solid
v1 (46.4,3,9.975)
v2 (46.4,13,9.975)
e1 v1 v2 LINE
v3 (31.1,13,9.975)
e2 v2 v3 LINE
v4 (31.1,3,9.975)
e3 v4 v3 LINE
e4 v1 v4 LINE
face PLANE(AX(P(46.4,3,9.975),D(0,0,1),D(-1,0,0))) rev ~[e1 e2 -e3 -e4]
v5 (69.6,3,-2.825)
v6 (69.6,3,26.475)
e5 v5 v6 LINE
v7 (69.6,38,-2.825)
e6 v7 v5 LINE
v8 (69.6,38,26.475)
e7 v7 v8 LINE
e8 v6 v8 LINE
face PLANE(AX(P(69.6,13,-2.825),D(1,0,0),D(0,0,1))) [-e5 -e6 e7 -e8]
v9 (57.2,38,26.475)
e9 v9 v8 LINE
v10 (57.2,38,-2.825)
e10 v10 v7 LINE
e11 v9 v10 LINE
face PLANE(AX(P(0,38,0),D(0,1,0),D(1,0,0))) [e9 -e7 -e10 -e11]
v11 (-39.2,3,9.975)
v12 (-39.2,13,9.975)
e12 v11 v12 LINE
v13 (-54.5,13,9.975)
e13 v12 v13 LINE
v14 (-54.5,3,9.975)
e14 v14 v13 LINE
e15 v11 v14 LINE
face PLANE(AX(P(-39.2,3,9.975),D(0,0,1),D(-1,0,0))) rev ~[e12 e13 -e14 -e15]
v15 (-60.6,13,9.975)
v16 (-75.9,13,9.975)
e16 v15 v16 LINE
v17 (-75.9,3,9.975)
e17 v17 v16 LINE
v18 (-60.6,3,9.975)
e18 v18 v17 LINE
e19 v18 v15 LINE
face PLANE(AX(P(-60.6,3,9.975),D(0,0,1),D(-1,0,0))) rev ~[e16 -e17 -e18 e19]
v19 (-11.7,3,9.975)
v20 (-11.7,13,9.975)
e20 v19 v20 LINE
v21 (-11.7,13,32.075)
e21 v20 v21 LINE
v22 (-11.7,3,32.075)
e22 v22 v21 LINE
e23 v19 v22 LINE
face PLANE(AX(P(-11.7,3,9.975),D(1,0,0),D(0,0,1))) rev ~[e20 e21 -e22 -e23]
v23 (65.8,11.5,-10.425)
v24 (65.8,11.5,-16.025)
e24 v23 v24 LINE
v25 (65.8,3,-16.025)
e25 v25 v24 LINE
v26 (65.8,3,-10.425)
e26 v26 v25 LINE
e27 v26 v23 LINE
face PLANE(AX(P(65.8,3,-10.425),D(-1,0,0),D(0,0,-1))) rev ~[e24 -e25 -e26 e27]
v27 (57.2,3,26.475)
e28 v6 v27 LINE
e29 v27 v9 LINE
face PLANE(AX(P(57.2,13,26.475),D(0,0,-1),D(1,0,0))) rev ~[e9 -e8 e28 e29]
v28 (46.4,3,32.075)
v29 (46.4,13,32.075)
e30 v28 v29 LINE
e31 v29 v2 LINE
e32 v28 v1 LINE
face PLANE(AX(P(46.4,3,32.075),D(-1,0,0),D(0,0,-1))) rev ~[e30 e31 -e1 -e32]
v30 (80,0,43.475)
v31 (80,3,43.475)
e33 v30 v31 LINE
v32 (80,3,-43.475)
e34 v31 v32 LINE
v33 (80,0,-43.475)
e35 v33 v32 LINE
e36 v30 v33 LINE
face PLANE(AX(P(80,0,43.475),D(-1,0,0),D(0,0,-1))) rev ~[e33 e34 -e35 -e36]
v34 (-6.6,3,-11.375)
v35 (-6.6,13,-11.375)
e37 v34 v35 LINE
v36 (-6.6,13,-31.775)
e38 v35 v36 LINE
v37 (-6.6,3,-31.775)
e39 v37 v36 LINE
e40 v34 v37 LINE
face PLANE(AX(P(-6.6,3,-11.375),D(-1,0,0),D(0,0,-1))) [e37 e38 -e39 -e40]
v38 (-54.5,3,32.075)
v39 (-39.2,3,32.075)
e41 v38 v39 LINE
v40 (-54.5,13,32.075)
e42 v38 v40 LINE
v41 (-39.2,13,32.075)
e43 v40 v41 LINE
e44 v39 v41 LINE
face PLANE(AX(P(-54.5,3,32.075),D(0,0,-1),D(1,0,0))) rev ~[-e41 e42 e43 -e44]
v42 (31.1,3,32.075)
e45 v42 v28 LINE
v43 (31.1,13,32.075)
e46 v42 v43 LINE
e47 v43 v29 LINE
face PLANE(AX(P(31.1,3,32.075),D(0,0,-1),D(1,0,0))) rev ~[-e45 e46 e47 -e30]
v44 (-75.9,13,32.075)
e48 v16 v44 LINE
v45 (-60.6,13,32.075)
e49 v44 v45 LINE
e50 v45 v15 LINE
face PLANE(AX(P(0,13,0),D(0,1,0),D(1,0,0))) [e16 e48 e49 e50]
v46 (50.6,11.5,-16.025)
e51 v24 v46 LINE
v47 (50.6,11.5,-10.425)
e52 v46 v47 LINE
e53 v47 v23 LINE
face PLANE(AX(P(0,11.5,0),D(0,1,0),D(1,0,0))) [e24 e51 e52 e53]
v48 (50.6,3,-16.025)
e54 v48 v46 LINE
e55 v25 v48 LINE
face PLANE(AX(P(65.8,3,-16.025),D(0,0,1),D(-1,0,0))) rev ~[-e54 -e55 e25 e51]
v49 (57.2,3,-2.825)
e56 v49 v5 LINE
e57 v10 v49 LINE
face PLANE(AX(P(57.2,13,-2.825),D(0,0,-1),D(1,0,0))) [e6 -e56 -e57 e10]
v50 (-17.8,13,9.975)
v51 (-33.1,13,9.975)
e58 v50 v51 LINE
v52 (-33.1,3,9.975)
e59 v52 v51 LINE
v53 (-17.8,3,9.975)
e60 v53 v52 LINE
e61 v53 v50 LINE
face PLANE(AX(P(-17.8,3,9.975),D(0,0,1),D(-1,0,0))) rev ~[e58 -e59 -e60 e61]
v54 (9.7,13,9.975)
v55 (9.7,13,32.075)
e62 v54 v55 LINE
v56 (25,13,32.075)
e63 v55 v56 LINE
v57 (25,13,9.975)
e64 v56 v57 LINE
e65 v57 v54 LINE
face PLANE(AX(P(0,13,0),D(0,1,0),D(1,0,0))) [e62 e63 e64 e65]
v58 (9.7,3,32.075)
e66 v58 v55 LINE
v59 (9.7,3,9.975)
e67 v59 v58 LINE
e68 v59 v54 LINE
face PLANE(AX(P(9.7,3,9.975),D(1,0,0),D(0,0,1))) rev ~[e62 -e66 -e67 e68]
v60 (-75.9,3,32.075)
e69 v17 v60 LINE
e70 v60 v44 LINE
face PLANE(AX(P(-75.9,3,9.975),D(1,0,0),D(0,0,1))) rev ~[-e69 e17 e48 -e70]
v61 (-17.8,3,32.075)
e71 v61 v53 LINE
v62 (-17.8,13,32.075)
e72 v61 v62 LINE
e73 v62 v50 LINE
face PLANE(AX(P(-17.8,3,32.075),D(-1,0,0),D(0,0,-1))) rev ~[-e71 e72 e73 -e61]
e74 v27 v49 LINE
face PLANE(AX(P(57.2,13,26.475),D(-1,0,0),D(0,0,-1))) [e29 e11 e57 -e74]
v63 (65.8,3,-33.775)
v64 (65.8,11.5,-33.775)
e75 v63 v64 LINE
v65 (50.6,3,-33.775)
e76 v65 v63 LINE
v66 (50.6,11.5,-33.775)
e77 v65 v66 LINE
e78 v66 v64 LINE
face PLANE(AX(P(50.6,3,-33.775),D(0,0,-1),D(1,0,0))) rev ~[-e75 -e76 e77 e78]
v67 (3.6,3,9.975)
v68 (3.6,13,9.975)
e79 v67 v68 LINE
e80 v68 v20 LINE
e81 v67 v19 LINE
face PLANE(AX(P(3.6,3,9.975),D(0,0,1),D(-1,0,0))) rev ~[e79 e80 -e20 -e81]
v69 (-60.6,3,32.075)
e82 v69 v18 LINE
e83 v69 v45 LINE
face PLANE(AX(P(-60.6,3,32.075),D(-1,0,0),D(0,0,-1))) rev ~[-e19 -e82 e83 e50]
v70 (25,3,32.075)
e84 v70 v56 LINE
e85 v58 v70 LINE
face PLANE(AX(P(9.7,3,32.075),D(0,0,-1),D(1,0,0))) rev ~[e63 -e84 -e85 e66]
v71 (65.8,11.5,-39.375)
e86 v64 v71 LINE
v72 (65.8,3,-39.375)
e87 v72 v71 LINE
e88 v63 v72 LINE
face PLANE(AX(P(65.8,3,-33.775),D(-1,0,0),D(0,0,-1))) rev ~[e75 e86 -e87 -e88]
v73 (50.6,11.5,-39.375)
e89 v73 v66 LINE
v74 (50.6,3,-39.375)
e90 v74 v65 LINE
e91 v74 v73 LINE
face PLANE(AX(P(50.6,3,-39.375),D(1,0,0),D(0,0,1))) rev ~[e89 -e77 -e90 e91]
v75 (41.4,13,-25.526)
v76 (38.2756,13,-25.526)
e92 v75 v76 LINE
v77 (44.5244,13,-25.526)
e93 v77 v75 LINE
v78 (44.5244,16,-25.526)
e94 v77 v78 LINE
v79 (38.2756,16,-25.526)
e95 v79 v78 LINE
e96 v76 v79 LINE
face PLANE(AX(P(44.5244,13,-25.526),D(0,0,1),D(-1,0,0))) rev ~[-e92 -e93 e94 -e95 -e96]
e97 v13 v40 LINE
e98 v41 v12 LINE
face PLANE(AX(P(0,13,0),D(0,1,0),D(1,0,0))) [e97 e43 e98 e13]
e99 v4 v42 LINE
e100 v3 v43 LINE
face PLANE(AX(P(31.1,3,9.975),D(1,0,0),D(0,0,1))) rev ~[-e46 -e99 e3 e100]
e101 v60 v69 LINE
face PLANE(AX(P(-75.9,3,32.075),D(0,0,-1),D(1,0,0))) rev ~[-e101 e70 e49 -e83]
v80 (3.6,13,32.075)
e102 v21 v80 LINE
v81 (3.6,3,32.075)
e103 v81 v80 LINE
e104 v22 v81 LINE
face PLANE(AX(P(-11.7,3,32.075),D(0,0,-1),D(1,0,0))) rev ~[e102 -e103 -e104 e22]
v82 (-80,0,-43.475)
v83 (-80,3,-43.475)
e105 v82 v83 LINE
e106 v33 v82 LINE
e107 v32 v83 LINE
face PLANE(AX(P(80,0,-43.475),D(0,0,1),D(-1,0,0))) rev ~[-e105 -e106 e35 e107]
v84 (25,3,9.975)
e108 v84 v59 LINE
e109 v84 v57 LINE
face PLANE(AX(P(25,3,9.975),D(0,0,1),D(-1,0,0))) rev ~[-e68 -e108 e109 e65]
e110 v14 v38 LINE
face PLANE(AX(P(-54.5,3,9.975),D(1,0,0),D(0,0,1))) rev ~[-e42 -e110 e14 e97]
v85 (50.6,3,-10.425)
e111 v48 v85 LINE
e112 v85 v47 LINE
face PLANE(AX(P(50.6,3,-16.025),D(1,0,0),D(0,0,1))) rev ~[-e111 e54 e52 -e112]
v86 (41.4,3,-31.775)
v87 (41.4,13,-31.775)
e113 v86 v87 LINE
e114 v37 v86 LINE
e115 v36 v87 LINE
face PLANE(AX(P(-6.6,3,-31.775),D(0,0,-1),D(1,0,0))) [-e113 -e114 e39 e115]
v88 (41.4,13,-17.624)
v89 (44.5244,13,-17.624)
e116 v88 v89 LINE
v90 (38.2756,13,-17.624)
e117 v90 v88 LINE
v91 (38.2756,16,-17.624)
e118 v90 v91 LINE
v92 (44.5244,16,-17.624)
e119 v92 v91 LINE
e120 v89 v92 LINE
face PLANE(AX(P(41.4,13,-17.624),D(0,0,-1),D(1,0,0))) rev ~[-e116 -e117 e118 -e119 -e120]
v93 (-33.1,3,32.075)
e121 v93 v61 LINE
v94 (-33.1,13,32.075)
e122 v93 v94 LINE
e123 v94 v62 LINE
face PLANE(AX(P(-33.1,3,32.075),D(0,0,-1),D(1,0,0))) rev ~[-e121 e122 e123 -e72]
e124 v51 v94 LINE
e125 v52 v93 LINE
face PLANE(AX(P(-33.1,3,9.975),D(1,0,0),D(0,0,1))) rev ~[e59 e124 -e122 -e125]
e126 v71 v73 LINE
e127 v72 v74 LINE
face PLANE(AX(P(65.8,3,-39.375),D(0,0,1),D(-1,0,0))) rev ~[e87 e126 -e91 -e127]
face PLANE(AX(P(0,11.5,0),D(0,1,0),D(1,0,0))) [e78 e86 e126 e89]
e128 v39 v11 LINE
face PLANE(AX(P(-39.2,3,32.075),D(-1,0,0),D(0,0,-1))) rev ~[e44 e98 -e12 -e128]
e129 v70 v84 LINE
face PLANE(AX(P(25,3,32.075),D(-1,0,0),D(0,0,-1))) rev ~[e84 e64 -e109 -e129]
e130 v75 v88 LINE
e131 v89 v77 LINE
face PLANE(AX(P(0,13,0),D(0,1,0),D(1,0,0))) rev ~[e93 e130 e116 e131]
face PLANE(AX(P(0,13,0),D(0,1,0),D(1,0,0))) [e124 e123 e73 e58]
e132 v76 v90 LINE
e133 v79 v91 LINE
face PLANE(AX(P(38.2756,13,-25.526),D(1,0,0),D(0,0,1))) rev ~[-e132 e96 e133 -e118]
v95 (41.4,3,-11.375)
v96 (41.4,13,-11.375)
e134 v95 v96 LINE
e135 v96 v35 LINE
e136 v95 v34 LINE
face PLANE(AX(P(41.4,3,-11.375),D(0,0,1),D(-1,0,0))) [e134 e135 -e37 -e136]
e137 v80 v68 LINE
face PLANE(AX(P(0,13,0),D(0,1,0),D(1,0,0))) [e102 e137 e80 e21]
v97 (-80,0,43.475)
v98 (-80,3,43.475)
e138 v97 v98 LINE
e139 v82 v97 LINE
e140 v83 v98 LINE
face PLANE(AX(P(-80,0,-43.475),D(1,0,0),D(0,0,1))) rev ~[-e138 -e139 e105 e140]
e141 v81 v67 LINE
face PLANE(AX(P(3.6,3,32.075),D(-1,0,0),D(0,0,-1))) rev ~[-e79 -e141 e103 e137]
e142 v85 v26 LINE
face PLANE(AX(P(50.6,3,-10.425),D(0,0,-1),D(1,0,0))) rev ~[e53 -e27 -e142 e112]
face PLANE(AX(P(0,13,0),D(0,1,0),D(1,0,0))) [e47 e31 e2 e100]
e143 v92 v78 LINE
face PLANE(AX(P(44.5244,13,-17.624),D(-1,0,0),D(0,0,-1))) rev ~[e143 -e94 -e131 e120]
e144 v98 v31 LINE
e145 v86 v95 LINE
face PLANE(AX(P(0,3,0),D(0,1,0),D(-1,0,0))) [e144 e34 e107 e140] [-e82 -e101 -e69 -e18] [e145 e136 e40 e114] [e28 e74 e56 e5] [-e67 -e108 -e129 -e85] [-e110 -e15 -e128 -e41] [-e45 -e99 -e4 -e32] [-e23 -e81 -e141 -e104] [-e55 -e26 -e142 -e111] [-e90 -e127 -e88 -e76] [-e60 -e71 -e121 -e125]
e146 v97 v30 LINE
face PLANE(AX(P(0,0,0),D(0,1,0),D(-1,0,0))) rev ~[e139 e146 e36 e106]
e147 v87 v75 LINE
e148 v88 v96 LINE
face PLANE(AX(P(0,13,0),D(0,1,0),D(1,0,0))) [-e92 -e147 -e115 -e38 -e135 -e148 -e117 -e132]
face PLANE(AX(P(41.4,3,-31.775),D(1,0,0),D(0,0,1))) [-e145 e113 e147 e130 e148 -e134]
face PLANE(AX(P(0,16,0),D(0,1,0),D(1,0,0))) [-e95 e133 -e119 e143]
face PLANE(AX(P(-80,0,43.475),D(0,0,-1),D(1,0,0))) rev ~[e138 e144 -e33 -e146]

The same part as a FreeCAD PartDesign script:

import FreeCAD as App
import Part
import Sketcher

doc = App.newDocument("Part")
body = doc.addObject("PartDesign::Body", "Body")

# Sketch on XZ plane
sketch1 = body.newObject("Sketcher::SketchObject", "Sketch")
sketch1.AttachmentSupport = (doc.getObject("XZ_Plane"), [""])
sketch1.MapMode = "FlatFace"
sketch1.addGeometry([
    Part.LineSegment(App.Vector(80, 43, 0), App.Vector(80, -43, 0)),
    Part.LineSegment(App.Vector(80, -43, 0), App.Vector(-80, -43, 0)),
    Part.LineSegment(App.Vector(-80, -43, 0), App.Vector(-80, 43, 0)),
    Part.LineSegment(App.Vector(-80, 43, 0), App.Vector(80, 43, 0)),
], False)
sketch1.addConstraint([
    Sketcher.Constraint("Coincident", 0, 2, 1, 1),
    Sketcher.Constraint("Coincident", 1, 2, 2, 1),
    Sketcher.Constraint("Coincident", 2, 2, 3, 1),
    Sketcher.Constraint("Coincident", 3, 2, 0, 1),
    Sketcher.Constraint("Vertical", 0),
    Sketcher.Constraint("Horizontal", 1),
    Sketcher.Constraint("Vertical", 2),
    Sketcher.Constraint("Horizontal", 3),
    Sketcher.Constraint("Symmetric", 0, 2, 2, 2, -1, 1),
    Sketcher.Constraint("DistanceX", 1, 2, 1, 1, 160.0),
    Sketcher.Constraint("DistanceY", 0, 2, 0, 1, 86.95),
])
pad1 = body.newObject("PartDesign::Pad", "Pad")
pad1.Profile = sketch1
pad1.Length = 3
pad1.Reversed = True

# Sketch on XZ plane
sketch2 = body.newObject("Sketcher::SketchObject", "Sketch001")
sketch2.AttachmentSupport = (doc.getObject("XZ_Plane"), [""])
sketch2.MapMode = "FlatFace"
sketch2.AttachmentOffset = App.Placement(App.Vector(0, 0, -3), App.Rotation())
sketch2.addGeometry([
    Part.LineSegment(App.Vector(41, -32, 0), App.Vector(-7, -32, 0)),  # 0
    Part.LineSegment(App.Vector(-7, -32, 0), App.Vector(-7, -11, 0)),  # 1
    Part.LineSegment(App.Vector(-7, -11, 0), App.Vector(41, -11, 0)),  # 2
    Part.LineSegment(App.Vector(41, -11, 0), App.Vector(41, -32, 0)),  # 3
    Part.LineSegment(App.Vector(-76, 10, 0), App.Vector(-76, 32, 0)),  # 4
    Part.LineSegment(App.Vector(-76, 32, 0), App.Vector(-61, 32, 0)),  # 5
    Part.LineSegment(App.Vector(-61, 32, 0), App.Vector(-61, 10, 0)),  # 6
    Part.LineSegment(App.Vector(-61, 10, 0), App.Vector(-76, 10, 0)),  # 7
    Part.LineSegment(App.Vector(-54, 10, 0), App.Vector(-54, 32, 0)),  # 8
    Part.LineSegment(App.Vector(-54, 32, 0), App.Vector(-39, 32, 0)),  # 9
    Part.LineSegment(App.Vector(-39, 32, 0), App.Vector(-39, 10, 0)),  # 10
    Part.LineSegment(App.Vector(-39, 10, 0), App.Vector(-54, 10, 0)),  # 11
    Part.LineSegment(App.Vector(-33, 10, 0), App.Vector(-33, 32, 0)),  # 12
    Part.LineSegment(App.Vector(-33, 32, 0), App.Vector(-18, 32, 0)),  # 13
    Part.LineSegment(App.Vector(-18, 32, 0), App.Vector(-18, 10, 0)),  # 14
    Part.LineSegment(App.Vector(-18, 10, 0), App.Vector(-33, 10, 0)),  # 15
    Part.LineSegment(App.Vector(70, -3, 0), App.Vector(57, -3, 0)),  # 16
    Part.LineSegment(App.Vector(57, -3, 0), App.Vector(57, 26, 0)),  # 17
    Part.LineSegment(App.Vector(57, 26, 0), App.Vector(70, 26, 0)),  # 18
    Part.LineSegment(App.Vector(70, 26, 0), App.Vector(70, -3, 0)),  # 19
    Part.LineSegment(App.Vector(4, 10, 0), App.Vector(-12, 10, 0)),  # 20
    Part.LineSegment(App.Vector(-12, 10, 0), App.Vector(-12, 32, 0)),  # 21
    Part.LineSegment(App.Vector(-12, 32, 0), App.Vector(4, 32, 0)),  # 22
    Part.LineSegment(App.Vector(4, 32, 0), App.Vector(4, 10, 0)),  # 23
    Part.LineSegment(App.Vector(46, 10, 0), App.Vector(31, 10, 0)),  # 24
    Part.LineSegment(App.Vector(31, 10, 0), App.Vector(31, 32, 0)),  # 25
    Part.LineSegment(App.Vector(31, 32, 0), App.Vector(46, 32, 0)),  # 26
    Part.LineSegment(App.Vector(46, 32, 0), App.Vector(46, 10, 0)),  # 27
    Part.LineSegment(App.Vector(25, 32, 0), App.Vector(25, 10, 0)),  # 28
    Part.LineSegment(App.Vector(25, 10, 0), App.Vector(10, 10, 0)),  # 29
    Part.LineSegment(App.Vector(10, 10, 0), App.Vector(10, 32, 0)),  # 30
    Part.LineSegment(App.Vector(10, 32, 0), App.Vector(25, 32, 0)),  # 31
], False)
sketch2.addConstraint([
    Sketcher.Constraint("Coincident", 0, 2, 1, 1),
    Sketcher.Constraint("Coincident", 1, 2, 2, 1),
    Sketcher.Constraint("Coincident", 2, 2, 3, 1),
    Sketcher.Constraint("Coincident", 3, 2, 0, 1),
    Sketcher.Constraint("Coincident", 4, 2, 5, 1),
    Sketcher.Constraint("Coincident", 5, 2, 6, 1),
    Sketcher.Constraint("Coincident", 6, 2, 7, 1),
    Sketcher.Constraint("Coincident", 7, 2, 4, 1),
    Sketcher.Constraint("Coincident", 8, 2, 9, 1),
    Sketcher.Constraint("Coincident", 9, 2, 10, 1),
    Sketcher.Constraint("Coincident", 10, 2, 11, 1),
    Sketcher.Constraint("Coincident", 11, 2, 8, 1),
    Sketcher.Constraint("Coincident", 12, 2, 13, 1),
    Sketcher.Constraint("Coincident", 13, 2, 14, 1),
    Sketcher.Constraint("Coincident", 14, 2, 15, 1),
    Sketcher.Constraint("Coincident", 15, 2, 12, 1),
    Sketcher.Constraint("Coincident", 16, 2, 17, 1),
    Sketcher.Constraint("Coincident", 17, 2, 18, 1),
    Sketcher.Constraint("Coincident", 18, 2, 19, 1),
    Sketcher.Constraint("Coincident", 19, 2, 16, 1),
    Sketcher.Constraint("Coincident", 20, 2, 21, 1),
    Sketcher.Constraint("Coincident", 21, 2, 22, 1),
    Sketcher.Constraint("Coincident", 22, 2, 23, 1),
    Sketcher.Constraint("Coincident", 23, 2, 20, 1),
    Sketcher.Constraint("Coincident", 24, 2, 25, 1),
    Sketcher.Constraint("Coincident", 25, 2, 26, 1),
    Sketcher.Constraint("Coincident", 26, 2, 27, 1),
    Sketcher.Constraint("Coincident", 27, 2, 24, 1),
    Sketcher.Constraint("Coincident", 28, 2, 29, 1),
    Sketcher.Constraint("Coincident", 29, 2, 30, 1),
    Sketcher.Constraint("Coincident", 30, 2, 31, 1),
    Sketcher.Constraint("Coincident", 31, 2, 28, 1),
    Sketcher.Constraint("Horizontal", 0),
    Sketcher.Constraint("Vertical", 1),
    Sketcher.Constraint("Horizontal", 2),
    Sketcher.Constraint("Vertical", 3),
    Sketcher.Constraint("Vertical", 4),
    Sketcher.Constraint("Horizontal", 5),
    Sketcher.Constraint("Vertical", 6),
    Sketcher.Constraint("Horizontal", 7),
    Sketcher.Constraint("Vertical", 8),
    Sketcher.Constraint("Horizontal", 9),
    Sketcher.Constraint("Vertical", 10),
    Sketcher.Constraint("Horizontal", 11),
    Sketcher.Constraint("Vertical", 12),
    Sketcher.Constraint("Horizontal", 13),
    Sketcher.Constraint("Vertical", 14),
    Sketcher.Constraint("Horizontal", 15),
    Sketcher.Constraint("Horizontal", 16),
    Sketcher.Constraint("Vertical", 17),
    Sketcher.Constraint("Horizontal", 18),
    Sketcher.Constraint("Vertical", 19),
    Sketcher.Constraint("Horizontal", 20),
    Sketcher.Constraint("Vertical", 21),
    Sketcher.Constraint("Horizontal", 22),
    Sketcher.Constraint("Vertical", 23),
    Sketcher.Constraint("Horizontal", 24),
    Sketcher.Constraint("Vertical", 25),
    Sketcher.Constraint("Horizontal", 26),
    Sketcher.Constraint("Vertical", 27),
    Sketcher.Constraint("Vertical", 28),
    Sketcher.Constraint("Horizontal", 29),
    Sketcher.Constraint("Vertical", 30),
    Sketcher.Constraint("Horizontal", 31),
    Sketcher.Constraint("Horizontal", 5, 2, 8, 2),
    Sketcher.Constraint("Horizontal", 7, 2, 10, 2),
    Sketcher.Constraint("Horizontal", 9, 2, 12, 2),
    Sketcher.Constraint("Horizontal", 11, 2, 14, 2),
    Sketcher.Constraint("Horizontal", 15, 2, 20, 2),
    Sketcher.Constraint("Horizontal", 13, 2, 21, 2),
    Sketcher.Constraint("Horizontal", 23, 2, 24, 2),
    Sketcher.Constraint("Horizontal", 22, 2, 25, 2),
    Sketcher.Constraint("Horizontal", 27, 2, 28, 2),
    Sketcher.Constraint("Horizontal", 26, 2, 30, 2),
    Sketcher.Constraint("Equal", 7, 9),
    Sketcher.Constraint("Equal", 11, 13),
    Sketcher.Constraint("Equal", 15, 20),
    Sketcher.Constraint("Equal", 22, 24),
    Sketcher.Constraint("Equal", 26, 29),
    Sketcher.Constraint("DistanceX", 0, 2, 0, 1, 48.0),
    Sketcher.Constraint("DistanceX", 5, 1, 5, 2, 15.3),
    Sketcher.Constraint("DistanceX", 16, 2, 16, 1, 12.4),
    Sketcher.Constraint("DistanceY", 1, 1, 1, 2, 20.4),
    Sketcher.Constraint("DistanceY", 4, 1, 4, 2, 22.1),
    Sketcher.Constraint("DistanceY", 17, 1, 17, 2, 29.3),
    Sketcher.Constraint("DistanceX", 20, 2, -1, 1, 11.7),
    Sketcher.Constraint("DistanceX", 5, 2, 8, 2, 6.1),
    Sketcher.Constraint("DistanceX", 9, 2, 12, 2, 6.1),
    Sketcher.Constraint("DistanceX", 14, 2, 20, 2, 6.1),
    Sketcher.Constraint("DistanceX", 28, 2, 24, 2, 6.1),
    Sketcher.Constraint("DistanceX", 23, 2, 29, 2, 6.1),
    Sketcher.Constraint("DistanceX", 5, 2, 1, 2, 54.0),
    Sketcher.Constraint("DistanceX", 14, 2, 16, 2, 75.0),
    Sketcher.Constraint("DistanceY", 16, 2, 14, 2, 12.8),
    Sketcher.Constraint("DistanceY", 1, 2, 4, 2, 43.45),
    Sketcher.Constraint("DistanceY", 0, 2, -1, 1, 31.775),
])
pad2 = body.newObject("PartDesign::Pad", "Pad001")
pad2.Profile = sketch2
pad2.Length = 10
pad2.Reversed = True

# Sketch on XZ plane
sketch3 = body.newObject("Sketcher::SketchObject", "Sketch002")
sketch3.AttachmentSupport = (doc.getObject("XZ_Plane"), [""])
sketch3.MapMode = "FlatFace"
sketch3.AttachmentOffset = App.Placement(App.Vector(0, 0, -13), App.Rotation())
sketch3.addGeometry([
    Part.LineSegment(App.Vector(45, -18, 0), App.Vector(45, -26, 0)),
    Part.LineSegment(App.Vector(45, -26, 0), App.Vector(38, -26, 0)),
    Part.LineSegment(App.Vector(38, -26, 0), App.Vector(38, -18, 0)),
    Part.LineSegment(App.Vector(38, -18, 0), App.Vector(45, -18, 0)),
], False)
sketch3.addConstraint([
    Sketcher.Constraint("Coincident", 0, 2, 1, 1),
    Sketcher.Constraint("Coincident", 1, 2, 2, 1),
    Sketcher.Constraint("Coincident", 2, 2, 3, 1),
    Sketcher.Constraint("Coincident", 3, 2, 0, 1),
    Sketcher.Constraint("Vertical", 0),
    Sketcher.Constraint("Horizontal", 1),
    Sketcher.Constraint("Vertical", 2),
    Sketcher.Constraint("Horizontal", 3),
    Sketcher.Constraint("DistanceY", 0, 2, 0, 1, 7.902),
    Sketcher.Constraint("DistanceX", 1, 2, 1, 1, 6.2488),
    Sketcher.Constraint("DistanceY", 0, 2, -1, 1, 25.526),
    Sketcher.Constraint("DistanceX", -1, 1, 0, 2, 44.5244),
])
pad3 = body.newObject("PartDesign::Pad", "Pad002")
pad3.Profile = sketch3
pad3.Length = 3
pad3.Reversed = True

# Sketch on XZ plane
sketch4 = body.newObject("Sketcher::SketchObject", "Sketch003")
sketch4.AttachmentSupport = (doc.getObject("XZ_Plane"), [""])
sketch4.MapMode = "FlatFace"
sketch4.AttachmentOffset = App.Placement(App.Vector(0, 0, -3), App.Rotation())
sketch4.addGeometry([
    Part.LineSegment(App.Vector(66, -10, 0), App.Vector(66, -16, 0)),  # 0
    Part.LineSegment(App.Vector(66, -16, 0), App.Vector(51, -16, 0)),  # 1
    Part.LineSegment(App.Vector(51, -16, 0), App.Vector(51, -10, 0)),  # 2
    Part.LineSegment(App.Vector(51, -10, 0), App.Vector(66, -10, 0)),  # 3
    Part.LineSegment(App.Vector(66, -34, 0), App.Vector(66, -39, 0)),  # 4
    Part.LineSegment(App.Vector(66, -39, 0), App.Vector(51, -39, 0)),  # 5
    Part.LineSegment(App.Vector(51, -39, 0), App.Vector(51, -34, 0)),  # 6
    Part.LineSegment(App.Vector(51, -34, 0), App.Vector(66, -34, 0)),  # 7
], False)
sketch4.addConstraint([
    Sketcher.Constraint("Coincident", 0, 2, 1, 1),
    Sketcher.Constraint("Coincident", 1, 2, 2, 1),
    Sketcher.Constraint("Coincident", 2, 2, 3, 1),
    Sketcher.Constraint("Coincident", 3, 2, 0, 1),
    Sketcher.Constraint("Coincident", 4, 2, 5, 1),
    Sketcher.Constraint("Coincident", 5, 2, 6, 1),
    Sketcher.Constraint("Coincident", 6, 2, 7, 1),
    Sketcher.Constraint("Coincident", 7, 2, 4, 1),
    Sketcher.Constraint("Vertical", 0),
    Sketcher.Constraint("Horizontal", 1),
    Sketcher.Constraint("Vertical", 2),
    Sketcher.Constraint("Horizontal", 3),
    Sketcher.Constraint("Vertical", 4),
    Sketcher.Constraint("Horizontal", 5),
    Sketcher.Constraint("Vertical", 6),
    Sketcher.Constraint("Horizontal", 7),
    Sketcher.Constraint("Vertical", 3, 2, 4, 2),
    Sketcher.Constraint("Vertical", 2, 2, 5, 2),
    Sketcher.Constraint("Equal", 2, 4),
    Sketcher.Constraint("DistanceX", 1, 2, 1, 1, 15.2),
    Sketcher.Constraint("DistanceY", 0, 2, 0, 1, 5.6),
    Sketcher.Constraint("DistanceX", -1, 1, 0, 2, 65.8),
    Sketcher.Constraint("DistanceY", 4, 2, 0, 2, 23.35),
    Sketcher.Constraint("DistanceY", 0, 2, -1, 1, 16.025),
])
pad4 = body.newObject("PartDesign::Pad", "Pad003")
pad4.Profile = sketch4
pad4.Length = 8.5
pad4.Reversed = True

# Sketch on XZ plane
sketch5 = body.newObject("Sketcher::SketchObject", "Sketch004")
sketch5.AttachmentSupport = (doc.getObject("XZ_Plane"), [""])
sketch5.MapMode = "FlatFace"
sketch5.AttachmentOffset = App.Placement(App.Vector(0, 0, -13), App.Rotation())
sketch5.addGeometry([
    Part.LineSegment(App.Vector(57, -3, 0), App.Vector(57, 26, 0)),
    Part.LineSegment(App.Vector(57, 26, 0), App.Vector(70, 26, 0)),
    Part.LineSegment(App.Vector(70, 26, 0), App.Vector(70, -3, 0)),
    Part.LineSegment(App.Vector(70, -3, 0), App.Vector(57, -3, 0)),
], False)
sketch5.addConstraint([
    Sketcher.Constraint("Coincident", 0, 2, 1, 1),
    Sketcher.Constraint("Coincident", 1, 2, 2, 1),
    Sketcher.Constraint("Coincident", 2, 2, 3, 1),
    Sketcher.Constraint("Coincident", 3, 2, 0, 1),
    Sketcher.Constraint("Vertical", 0),
    Sketcher.Constraint("Horizontal", 1),
    Sketcher.Constraint("Vertical", 2),
    Sketcher.Constraint("Horizontal", 3),
    Sketcher.Constraint("DistanceX", 1, 1, 1, 2, 12.4),
    Sketcher.Constraint("DistanceY", 0, 1, 0, 2, 29.3),
    Sketcher.Constraint("DistanceX", -1, 1, 0, 2, 57.2),
    Sketcher.Constraint("DistanceY", -1, 1, 0, 2, 26.475),
])
pad5 = body.newObject("PartDesign::Pad", "Pad004")
pad5.Profile = sketch5
pad5.Length = 25
pad5.Reversed = True

doc.recompute()
